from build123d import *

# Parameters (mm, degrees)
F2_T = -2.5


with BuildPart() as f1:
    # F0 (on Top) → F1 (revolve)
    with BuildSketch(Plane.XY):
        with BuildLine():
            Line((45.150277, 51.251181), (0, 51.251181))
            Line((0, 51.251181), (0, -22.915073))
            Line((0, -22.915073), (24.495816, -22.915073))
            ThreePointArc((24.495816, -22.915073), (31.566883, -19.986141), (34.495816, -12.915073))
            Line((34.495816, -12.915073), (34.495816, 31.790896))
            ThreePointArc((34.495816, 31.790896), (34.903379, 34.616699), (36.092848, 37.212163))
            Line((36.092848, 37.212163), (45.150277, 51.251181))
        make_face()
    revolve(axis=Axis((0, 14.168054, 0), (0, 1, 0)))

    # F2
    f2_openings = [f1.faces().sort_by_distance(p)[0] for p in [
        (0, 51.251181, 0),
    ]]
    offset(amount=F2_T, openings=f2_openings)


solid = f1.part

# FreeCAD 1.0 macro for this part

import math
import FreeCAD as App
import Part
import Sketcher

V = App.Vector


def faces_at(feature, points):
    """Names of the faces that lie closest to the given points."""
    faces = feature.Shape.Faces
    near = lambda p: min(range(len(faces)), key=lambda i: faces[i].distToShape(Part.Vertex(*p))[0])
    return sorted({f"Face{near(p) + 1}" for p in points})

doc = App.newDocument("Part")
body = doc.addObject("PartDesign::Body", "Body")

# Sketch on XY plane
sketch1 = body.newObject("Sketcher::SketchObject", "Sketch")
sketch1.AttachmentSupport = (doc.getObject("XY_Plane"), [""])
sketch1.MapMode = "FlatFace"
sketch1.addGeometry(Part.LineSegment(V(45, 51, 0), V(0, 51, 0)), False)
sketch1.addGeometry(Part.LineSegment(V(0, 51, 0), V(0, -23, 0)), False)
sketch1.addGeometry(Part.LineSegment(V(0, -23, 0), V(24, -23, 0)), False)
sketch1.addGeometry(Part.ArcOfCircle(Part.Circle(V(24, -13, 0), V(0, 0, 1), 10), math.radians(-90), math.radians(0)), False)
sketch1.addGeometry(Part.LineSegment(V(34, -13, 0), V(34, 32, 0)), False)
sketch1.addGeometry(Part.ArcOfCircle(Part.Circle(V(44, 32, 0), V(0, 0, 1), 10), math.radians(147), math.radians(180)), False)
sketch1.addGeometry(Part.LineSegment(V(36, 37, 0), V(45, 51, 0)), False)
sketch1.addConstraint(Sketcher.Constraint("Coincident", 0, 2, 1, 1))
sketch1.addConstraint(Sketcher.Constraint("Coincident", 1, 2, 2, 1))
sketch1.addConstraint(Sketcher.Constraint("Tangent", 2, 2, 3, 1))
sketch1.addConstraint(Sketcher.Constraint("Tangent", 3, 2, 4, 1))
sketch1.addConstraint(Sketcher.Constraint("Tangent", 4, 2, 5, 2))
sketch1.addConstraint(Sketcher.Constraint("Tangent", 5, 1, 6, 1))
sketch1.addConstraint(Sketcher.Constraint("Coincident", 6, 2, 0, 1))
sketch1.addConstraint(Sketcher.Constraint("Horizontal", 0))
sketch1.addConstraint(Sketcher.Constraint("Vertical", 1))
sketch1.addConstraint(Sketcher.Constraint("Horizontal", 2))
sketch1.addConstraint(Sketcher.Constraint("Vertical", 4))
sketch1.addConstraint(Sketcher.Constraint("PointOnObject", 0, 2, -2))
sketch1.addConstraint(Sketcher.Constraint("Radius", 3, 10.000001))
sketch1.addConstraint(Sketcher.Constraint("Radius", 5, 9.999992))
sketch1.addConstraint(Sketcher.Constraint("DistanceY", 4, 1, 4, 2, 44.705969))
sketch1.addConstraint(Sketcher.Constraint("DistanceY", -1, 1, 5, 3, 31.790899))
sketch1.addConstraint(Sketcher.Constraint("DistanceX", 0, 2, 0, 1, 45.150277))
sketch1.addConstraint(Sketcher.Constraint("DistanceX", 2, 1, 2, 2, 24.495816))
sketch1.addConstraint(Sketcher.Constraint("DistanceY", 1, 2, 1, 1, 74.166254))
revolution = body.newObject("PartDesign::Revolution", "Revolution")
revolution.Profile = sketch1
revolution.ReferenceAxis = (sketch1, ["V_Axis"])
revolution.Angle = 360
doc.recompute()

thickness = body.newObject("PartDesign::Thickness", "Thickness")
thickness.Base = (revolution, faces_at(revolution, [(0, 51.251, 0)]))
thickness.Value = 2.5
thickness.Reversed = True
thickness.Join = "Arc"

doc.recompute()
